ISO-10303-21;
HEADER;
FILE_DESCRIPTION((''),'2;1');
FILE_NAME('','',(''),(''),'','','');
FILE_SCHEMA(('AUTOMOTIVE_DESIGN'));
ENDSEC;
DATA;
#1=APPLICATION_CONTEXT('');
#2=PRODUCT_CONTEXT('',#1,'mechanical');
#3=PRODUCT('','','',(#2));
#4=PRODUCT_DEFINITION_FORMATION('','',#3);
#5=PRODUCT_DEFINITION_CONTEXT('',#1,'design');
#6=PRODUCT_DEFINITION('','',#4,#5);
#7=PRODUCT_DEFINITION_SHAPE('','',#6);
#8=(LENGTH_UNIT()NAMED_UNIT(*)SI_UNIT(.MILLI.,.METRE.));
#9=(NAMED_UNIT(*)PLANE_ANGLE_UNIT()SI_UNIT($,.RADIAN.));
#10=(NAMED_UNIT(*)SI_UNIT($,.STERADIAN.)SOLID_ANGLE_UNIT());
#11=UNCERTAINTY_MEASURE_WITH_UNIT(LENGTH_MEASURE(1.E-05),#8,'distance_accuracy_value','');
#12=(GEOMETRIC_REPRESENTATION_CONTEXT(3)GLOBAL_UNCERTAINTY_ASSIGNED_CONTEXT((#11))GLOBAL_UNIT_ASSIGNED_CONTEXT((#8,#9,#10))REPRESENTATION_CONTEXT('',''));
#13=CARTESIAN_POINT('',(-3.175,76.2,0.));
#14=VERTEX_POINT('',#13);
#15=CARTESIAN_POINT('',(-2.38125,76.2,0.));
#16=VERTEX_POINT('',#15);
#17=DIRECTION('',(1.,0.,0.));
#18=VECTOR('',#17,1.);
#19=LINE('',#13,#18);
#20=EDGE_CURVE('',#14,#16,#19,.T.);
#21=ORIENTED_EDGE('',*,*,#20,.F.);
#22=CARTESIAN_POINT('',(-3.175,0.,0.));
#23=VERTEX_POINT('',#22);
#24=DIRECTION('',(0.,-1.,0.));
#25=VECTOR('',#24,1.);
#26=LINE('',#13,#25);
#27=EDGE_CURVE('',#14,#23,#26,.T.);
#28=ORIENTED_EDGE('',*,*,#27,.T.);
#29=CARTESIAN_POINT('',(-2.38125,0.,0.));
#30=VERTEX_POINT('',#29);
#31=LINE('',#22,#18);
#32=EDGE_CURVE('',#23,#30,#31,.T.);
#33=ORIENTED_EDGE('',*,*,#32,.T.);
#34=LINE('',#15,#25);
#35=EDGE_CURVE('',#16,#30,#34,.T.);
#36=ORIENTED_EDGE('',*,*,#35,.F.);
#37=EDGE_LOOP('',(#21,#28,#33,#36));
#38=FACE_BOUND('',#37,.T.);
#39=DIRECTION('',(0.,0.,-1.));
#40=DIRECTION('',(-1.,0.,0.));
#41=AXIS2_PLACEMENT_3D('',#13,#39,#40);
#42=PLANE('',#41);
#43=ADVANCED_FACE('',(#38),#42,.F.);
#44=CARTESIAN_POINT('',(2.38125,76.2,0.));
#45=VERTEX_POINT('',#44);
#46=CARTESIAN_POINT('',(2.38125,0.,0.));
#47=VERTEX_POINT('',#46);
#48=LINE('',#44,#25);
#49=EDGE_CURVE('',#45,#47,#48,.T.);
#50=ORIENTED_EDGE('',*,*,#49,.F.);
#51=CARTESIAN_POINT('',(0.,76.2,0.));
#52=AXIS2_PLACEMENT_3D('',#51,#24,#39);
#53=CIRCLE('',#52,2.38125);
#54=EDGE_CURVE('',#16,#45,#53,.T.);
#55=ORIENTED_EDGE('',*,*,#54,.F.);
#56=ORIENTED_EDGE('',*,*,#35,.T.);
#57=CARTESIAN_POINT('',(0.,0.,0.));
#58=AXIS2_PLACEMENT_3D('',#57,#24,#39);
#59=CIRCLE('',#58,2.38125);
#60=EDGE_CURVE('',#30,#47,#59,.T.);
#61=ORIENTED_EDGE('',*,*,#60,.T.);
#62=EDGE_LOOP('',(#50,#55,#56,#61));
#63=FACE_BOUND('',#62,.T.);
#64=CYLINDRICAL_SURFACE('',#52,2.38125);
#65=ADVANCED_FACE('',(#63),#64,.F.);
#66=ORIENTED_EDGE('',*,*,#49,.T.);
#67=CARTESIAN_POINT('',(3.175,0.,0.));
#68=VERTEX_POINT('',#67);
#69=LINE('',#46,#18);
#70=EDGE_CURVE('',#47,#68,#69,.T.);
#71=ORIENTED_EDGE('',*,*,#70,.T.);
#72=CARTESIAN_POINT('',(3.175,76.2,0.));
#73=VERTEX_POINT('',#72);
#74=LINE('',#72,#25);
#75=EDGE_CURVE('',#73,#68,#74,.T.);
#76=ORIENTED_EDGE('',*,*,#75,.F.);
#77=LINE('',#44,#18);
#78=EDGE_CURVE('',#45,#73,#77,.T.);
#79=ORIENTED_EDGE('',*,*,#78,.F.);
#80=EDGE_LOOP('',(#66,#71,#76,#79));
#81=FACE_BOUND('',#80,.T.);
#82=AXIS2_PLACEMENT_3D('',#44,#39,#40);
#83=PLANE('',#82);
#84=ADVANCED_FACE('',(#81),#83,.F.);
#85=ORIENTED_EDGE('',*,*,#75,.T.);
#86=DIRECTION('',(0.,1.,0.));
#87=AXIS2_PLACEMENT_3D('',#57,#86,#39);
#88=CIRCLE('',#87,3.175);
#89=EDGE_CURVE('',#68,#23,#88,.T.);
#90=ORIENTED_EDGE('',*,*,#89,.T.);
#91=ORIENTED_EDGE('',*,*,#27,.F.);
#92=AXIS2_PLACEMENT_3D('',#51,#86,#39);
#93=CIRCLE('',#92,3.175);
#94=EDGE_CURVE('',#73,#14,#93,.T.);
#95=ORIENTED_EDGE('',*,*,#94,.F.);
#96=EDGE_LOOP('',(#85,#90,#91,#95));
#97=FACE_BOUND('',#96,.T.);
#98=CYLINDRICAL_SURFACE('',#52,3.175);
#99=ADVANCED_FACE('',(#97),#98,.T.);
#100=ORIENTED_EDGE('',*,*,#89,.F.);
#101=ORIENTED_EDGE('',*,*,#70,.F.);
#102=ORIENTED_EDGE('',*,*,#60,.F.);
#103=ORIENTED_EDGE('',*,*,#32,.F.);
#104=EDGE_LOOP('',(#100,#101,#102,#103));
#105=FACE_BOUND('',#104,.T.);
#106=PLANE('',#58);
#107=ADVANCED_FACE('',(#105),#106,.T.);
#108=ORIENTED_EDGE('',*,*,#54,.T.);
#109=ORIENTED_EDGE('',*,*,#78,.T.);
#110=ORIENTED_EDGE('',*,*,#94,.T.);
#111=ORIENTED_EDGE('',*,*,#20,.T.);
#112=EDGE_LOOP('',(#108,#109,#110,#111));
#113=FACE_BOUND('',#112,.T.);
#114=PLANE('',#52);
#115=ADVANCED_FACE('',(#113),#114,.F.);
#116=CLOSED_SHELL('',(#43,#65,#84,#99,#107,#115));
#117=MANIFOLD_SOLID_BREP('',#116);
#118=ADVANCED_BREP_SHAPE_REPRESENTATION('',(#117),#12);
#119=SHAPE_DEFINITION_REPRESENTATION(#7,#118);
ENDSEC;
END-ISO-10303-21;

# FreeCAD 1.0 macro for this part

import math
import FreeCAD as App
import Part
import Sketcher
Q = App.Units.Quantity

doc = App.newDocument("Part")
body = doc.addObject("PartDesign::Body", "Body")

# Sketch on XZ plane
sketch1 = doc.addObject("Sketcher::SketchObject", "Sketch")
body.addObject(sketch1)
sketch1.AttachmentSupport = (doc.XZ_Plane, [""])
sketch1.MapMode = "FlatFace"
sketch1.addGeometry([
    Part.LineSegment(App.Vector(-3.175, 0, 0), App.Vector(-2.38125, 0, 0)),
    Part.ArcOfCircle(Part.Circle(App.Vector(0, 0, 0), App.Vector(0, 0, 1), 2.38125), math.radians(180), math.radians(360)),
    Part.LineSegment(App.Vector(2.38125, 0, 0), App.Vector(3.175, 0, 0)),
    Part.ArcOfCircle(Part.Circle(App.Vector(0, 0, 0), App.Vector(0, 0, 1), 3.175), math.radians(180), math.radians(360)),
], False)
sketch1.addConstraint([
    Sketcher.Constraint("Coincident", 0, 2, 1, 1),
    Sketcher.Constraint("Coincident", 1, 2, 2, 1),
    Sketcher.Constraint("Coincident", 2, 2, 3, 2),
    Sketcher.Constraint("Coincident", 3, 1, 0, 1),
    Sketcher.Constraint("Horizontal", 0),
    Sketcher.Constraint("Horizontal", 2),
    Sketcher.Constraint("Coincident", 1, 3, -1, 1),
    Sketcher.Constraint("Coincident", 3, 3, -1, 1),
    Sketcher.Constraint("PointOnObject", 0, 2, -1),
    Sketcher.Constraint("PointOnObject", 1, 2, -1),
    Sketcher.Constraint("Radius", 1, Q("0.09375 in")),
    Sketcher.Constraint("Radius", 3, Q("0.125 in")),
])
pad1 = doc.addObject("PartDesign::Pad", "Pad")
body.addObject(pad1)
pad1.Profile = sketch1
pad1.Length = Q("3 in")
pad1.Reversed = True

doc.recompute()
